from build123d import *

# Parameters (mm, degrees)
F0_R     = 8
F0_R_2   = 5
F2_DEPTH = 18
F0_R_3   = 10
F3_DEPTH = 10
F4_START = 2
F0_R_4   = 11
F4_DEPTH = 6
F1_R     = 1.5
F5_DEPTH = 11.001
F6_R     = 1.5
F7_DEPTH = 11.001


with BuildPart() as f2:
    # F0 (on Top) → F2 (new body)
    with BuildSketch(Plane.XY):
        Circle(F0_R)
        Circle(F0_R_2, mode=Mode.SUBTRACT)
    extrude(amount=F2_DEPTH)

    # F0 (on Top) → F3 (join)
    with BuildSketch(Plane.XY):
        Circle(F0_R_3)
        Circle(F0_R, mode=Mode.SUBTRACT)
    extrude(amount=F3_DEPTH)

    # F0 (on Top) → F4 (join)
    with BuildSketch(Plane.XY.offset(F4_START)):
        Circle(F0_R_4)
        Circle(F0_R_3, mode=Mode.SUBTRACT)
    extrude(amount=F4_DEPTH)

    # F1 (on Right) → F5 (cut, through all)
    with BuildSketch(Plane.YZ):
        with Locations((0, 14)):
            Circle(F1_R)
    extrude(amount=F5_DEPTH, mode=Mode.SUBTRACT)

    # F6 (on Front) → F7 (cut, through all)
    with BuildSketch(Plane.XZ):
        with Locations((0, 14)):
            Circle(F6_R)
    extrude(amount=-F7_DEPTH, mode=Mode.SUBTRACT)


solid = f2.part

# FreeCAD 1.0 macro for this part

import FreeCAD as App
import Part
import Sketcher
from FreeCAD import Vector

doc = App.newDocument("Part")
body = doc.addObject("PartDesign::Body", "Body")

sketch1 = doc.addObject("Sketcher::SketchObject", "Sketch")
body.addObject(sketch1)
sketch1.AttachmentSupport = (doc.XY_Plane, [""])
sketch1.MapMode = "FlatFace"
sketch1.addGeometry(Part.Circle(Vector(0, 0, 0), Vector(0, 0, 1), 8), False)
sketch1.addGeometry(Part.Circle(Vector(0, 0, 0), Vector(0, 0, 1), 5), False)
sketch1.addConstraint(Sketcher.Constraint("Coincident", 0, 3, -1, 1))
sketch1.addConstraint(Sketcher.Constraint("Coincident", 1, 3, -1, 1))
sketch1.addConstraint(Sketcher.Constraint("Diameter", 0, 16.0))
sketch1.addConstraint(Sketcher.Constraint("Diameter", 1, 10.0))
pad1 = doc.addObject("PartDesign::Pad", "Pad")
body.addObject(pad1)
pad1.Profile = sketch1
pad1.Length = 18

sketch2 = doc.addObject("Sketcher::SketchObject", "Sketch001")
body.addObject(sketch2)
sketch2.AttachmentSupport = (doc.XY_Plane, [""])
sketch2.MapMode = "FlatFace"
sketch2.addGeometry(Part.Circle(Vector(0, 0, 0), Vector(0, 0, 1), 10), False)
sketch2.addGeometry(Part.Circle(Vector(0, 0, 0), Vector(0, 0, 1), 8), False)
sketch2.addConstraint(Sketcher.Constraint("Coincident", 0, 3, -1, 1))
sketch2.addConstraint(Sketcher.Constraint("Coincident", 1, 3, -1, 1))
sketch2.addConstraint(Sketcher.Constraint("Diameter", 0, 20.0))
sketch2.addConstraint(Sketcher.Constraint("Diameter", 1, 16.0))
pad2 = doc.addObject("PartDesign::Pad", "Pad001")
body.addObject(pad2)
pad2.Profile = sketch2
pad2.Length = 10

sketch3 = doc.addObject("Sketcher::SketchObject", "Sketch002")
body.addObject(sketch3)
sketch3.AttachmentSupport = (doc.XY_Plane, [""])
sketch3.MapMode = "FlatFace"
sketch3.AttachmentOffset = App.Placement(Vector(0, 0, 2), App.Rotation())
sketch3.addGeometry(Part.Circle(Vector(0, 0, 0), Vector(0, 0, 1), 11), False)
sketch3.addGeometry(Part.Circle(Vector(0, 0, 0), Vector(0, 0, 1), 10), False)
sketch3.addConstraint(Sketcher.Constraint("Coincident", 0, 3, -1, 1))
sketch3.addConstraint(Sketcher.Constraint("Coincident", 1, 3, -1, 1))
sketch3.addConstraint(Sketcher.Constraint("Diameter", 0, 22.0))
sketch3.addConstraint(Sketcher.Constraint("Diameter", 1, 20.0))
pad3 = doc.addObject("PartDesign::Pad", "Pad002")
body.addObject(pad3)
pad3.Profile = sketch3
pad3.Length = 6

sketch4 = doc.addObject("Sketcher::SketchObject", "Sketch003")
body.addObject(sketch4)
sketch4.AttachmentSupport = (doc.YZ_Plane, [""])
sketch4.MapMode = "FlatFace"
sketch4.addGeometry(Part.Circle(Vector(0, 14, 0), Vector(0, 0, 1), 1.5), False)
sketch4.addConstraint(Sketcher.Constraint("PointOnObject", 0, 3, -2))
sketch4.addConstraint(Sketcher.Constraint("Diameter", 0, 3.0))
sketch4.addConstraint(Sketcher.Constraint("DistanceY", -1, 1, 0, 3, 14.0))
pocket1 = doc.addObject("PartDesign::Pocket", "Pocket")
body.addObject(pocket1)
pocket1.Profile = sketch4
pocket1.Type = "ThroughAll"
pocket1.Reversed = True

sketch5 = doc.addObject("Sketcher::SketchObject", "Sketch004")
body.addObject(sketch5)
sketch5.AttachmentSupport = (doc.XZ_Plane, [""])
sketch5.MapMode = "FlatFace"
sketch5.addGeometry(Part.Circle(Vector(0, 14, 0), Vector(0, 0, 1), 1.5), False)
sketch5.addConstraint(Sketcher.Constraint("PointOnObject", 0, 3, -2))
sketch5.addConstraint(Sketcher.Constraint("Diameter", 0, 3.0))
sketch5.addConstraint(Sketcher.Constraint("DistanceY", -1, 1, 0, 3, 14.0))
pocket2 = doc.addObject("PartDesign::Pocket", "Pocket001")
body.addObject(pocket2)
pocket2.Profile = sketch5
pocket2.Type = "ThroughAll"

doc.recompute()
